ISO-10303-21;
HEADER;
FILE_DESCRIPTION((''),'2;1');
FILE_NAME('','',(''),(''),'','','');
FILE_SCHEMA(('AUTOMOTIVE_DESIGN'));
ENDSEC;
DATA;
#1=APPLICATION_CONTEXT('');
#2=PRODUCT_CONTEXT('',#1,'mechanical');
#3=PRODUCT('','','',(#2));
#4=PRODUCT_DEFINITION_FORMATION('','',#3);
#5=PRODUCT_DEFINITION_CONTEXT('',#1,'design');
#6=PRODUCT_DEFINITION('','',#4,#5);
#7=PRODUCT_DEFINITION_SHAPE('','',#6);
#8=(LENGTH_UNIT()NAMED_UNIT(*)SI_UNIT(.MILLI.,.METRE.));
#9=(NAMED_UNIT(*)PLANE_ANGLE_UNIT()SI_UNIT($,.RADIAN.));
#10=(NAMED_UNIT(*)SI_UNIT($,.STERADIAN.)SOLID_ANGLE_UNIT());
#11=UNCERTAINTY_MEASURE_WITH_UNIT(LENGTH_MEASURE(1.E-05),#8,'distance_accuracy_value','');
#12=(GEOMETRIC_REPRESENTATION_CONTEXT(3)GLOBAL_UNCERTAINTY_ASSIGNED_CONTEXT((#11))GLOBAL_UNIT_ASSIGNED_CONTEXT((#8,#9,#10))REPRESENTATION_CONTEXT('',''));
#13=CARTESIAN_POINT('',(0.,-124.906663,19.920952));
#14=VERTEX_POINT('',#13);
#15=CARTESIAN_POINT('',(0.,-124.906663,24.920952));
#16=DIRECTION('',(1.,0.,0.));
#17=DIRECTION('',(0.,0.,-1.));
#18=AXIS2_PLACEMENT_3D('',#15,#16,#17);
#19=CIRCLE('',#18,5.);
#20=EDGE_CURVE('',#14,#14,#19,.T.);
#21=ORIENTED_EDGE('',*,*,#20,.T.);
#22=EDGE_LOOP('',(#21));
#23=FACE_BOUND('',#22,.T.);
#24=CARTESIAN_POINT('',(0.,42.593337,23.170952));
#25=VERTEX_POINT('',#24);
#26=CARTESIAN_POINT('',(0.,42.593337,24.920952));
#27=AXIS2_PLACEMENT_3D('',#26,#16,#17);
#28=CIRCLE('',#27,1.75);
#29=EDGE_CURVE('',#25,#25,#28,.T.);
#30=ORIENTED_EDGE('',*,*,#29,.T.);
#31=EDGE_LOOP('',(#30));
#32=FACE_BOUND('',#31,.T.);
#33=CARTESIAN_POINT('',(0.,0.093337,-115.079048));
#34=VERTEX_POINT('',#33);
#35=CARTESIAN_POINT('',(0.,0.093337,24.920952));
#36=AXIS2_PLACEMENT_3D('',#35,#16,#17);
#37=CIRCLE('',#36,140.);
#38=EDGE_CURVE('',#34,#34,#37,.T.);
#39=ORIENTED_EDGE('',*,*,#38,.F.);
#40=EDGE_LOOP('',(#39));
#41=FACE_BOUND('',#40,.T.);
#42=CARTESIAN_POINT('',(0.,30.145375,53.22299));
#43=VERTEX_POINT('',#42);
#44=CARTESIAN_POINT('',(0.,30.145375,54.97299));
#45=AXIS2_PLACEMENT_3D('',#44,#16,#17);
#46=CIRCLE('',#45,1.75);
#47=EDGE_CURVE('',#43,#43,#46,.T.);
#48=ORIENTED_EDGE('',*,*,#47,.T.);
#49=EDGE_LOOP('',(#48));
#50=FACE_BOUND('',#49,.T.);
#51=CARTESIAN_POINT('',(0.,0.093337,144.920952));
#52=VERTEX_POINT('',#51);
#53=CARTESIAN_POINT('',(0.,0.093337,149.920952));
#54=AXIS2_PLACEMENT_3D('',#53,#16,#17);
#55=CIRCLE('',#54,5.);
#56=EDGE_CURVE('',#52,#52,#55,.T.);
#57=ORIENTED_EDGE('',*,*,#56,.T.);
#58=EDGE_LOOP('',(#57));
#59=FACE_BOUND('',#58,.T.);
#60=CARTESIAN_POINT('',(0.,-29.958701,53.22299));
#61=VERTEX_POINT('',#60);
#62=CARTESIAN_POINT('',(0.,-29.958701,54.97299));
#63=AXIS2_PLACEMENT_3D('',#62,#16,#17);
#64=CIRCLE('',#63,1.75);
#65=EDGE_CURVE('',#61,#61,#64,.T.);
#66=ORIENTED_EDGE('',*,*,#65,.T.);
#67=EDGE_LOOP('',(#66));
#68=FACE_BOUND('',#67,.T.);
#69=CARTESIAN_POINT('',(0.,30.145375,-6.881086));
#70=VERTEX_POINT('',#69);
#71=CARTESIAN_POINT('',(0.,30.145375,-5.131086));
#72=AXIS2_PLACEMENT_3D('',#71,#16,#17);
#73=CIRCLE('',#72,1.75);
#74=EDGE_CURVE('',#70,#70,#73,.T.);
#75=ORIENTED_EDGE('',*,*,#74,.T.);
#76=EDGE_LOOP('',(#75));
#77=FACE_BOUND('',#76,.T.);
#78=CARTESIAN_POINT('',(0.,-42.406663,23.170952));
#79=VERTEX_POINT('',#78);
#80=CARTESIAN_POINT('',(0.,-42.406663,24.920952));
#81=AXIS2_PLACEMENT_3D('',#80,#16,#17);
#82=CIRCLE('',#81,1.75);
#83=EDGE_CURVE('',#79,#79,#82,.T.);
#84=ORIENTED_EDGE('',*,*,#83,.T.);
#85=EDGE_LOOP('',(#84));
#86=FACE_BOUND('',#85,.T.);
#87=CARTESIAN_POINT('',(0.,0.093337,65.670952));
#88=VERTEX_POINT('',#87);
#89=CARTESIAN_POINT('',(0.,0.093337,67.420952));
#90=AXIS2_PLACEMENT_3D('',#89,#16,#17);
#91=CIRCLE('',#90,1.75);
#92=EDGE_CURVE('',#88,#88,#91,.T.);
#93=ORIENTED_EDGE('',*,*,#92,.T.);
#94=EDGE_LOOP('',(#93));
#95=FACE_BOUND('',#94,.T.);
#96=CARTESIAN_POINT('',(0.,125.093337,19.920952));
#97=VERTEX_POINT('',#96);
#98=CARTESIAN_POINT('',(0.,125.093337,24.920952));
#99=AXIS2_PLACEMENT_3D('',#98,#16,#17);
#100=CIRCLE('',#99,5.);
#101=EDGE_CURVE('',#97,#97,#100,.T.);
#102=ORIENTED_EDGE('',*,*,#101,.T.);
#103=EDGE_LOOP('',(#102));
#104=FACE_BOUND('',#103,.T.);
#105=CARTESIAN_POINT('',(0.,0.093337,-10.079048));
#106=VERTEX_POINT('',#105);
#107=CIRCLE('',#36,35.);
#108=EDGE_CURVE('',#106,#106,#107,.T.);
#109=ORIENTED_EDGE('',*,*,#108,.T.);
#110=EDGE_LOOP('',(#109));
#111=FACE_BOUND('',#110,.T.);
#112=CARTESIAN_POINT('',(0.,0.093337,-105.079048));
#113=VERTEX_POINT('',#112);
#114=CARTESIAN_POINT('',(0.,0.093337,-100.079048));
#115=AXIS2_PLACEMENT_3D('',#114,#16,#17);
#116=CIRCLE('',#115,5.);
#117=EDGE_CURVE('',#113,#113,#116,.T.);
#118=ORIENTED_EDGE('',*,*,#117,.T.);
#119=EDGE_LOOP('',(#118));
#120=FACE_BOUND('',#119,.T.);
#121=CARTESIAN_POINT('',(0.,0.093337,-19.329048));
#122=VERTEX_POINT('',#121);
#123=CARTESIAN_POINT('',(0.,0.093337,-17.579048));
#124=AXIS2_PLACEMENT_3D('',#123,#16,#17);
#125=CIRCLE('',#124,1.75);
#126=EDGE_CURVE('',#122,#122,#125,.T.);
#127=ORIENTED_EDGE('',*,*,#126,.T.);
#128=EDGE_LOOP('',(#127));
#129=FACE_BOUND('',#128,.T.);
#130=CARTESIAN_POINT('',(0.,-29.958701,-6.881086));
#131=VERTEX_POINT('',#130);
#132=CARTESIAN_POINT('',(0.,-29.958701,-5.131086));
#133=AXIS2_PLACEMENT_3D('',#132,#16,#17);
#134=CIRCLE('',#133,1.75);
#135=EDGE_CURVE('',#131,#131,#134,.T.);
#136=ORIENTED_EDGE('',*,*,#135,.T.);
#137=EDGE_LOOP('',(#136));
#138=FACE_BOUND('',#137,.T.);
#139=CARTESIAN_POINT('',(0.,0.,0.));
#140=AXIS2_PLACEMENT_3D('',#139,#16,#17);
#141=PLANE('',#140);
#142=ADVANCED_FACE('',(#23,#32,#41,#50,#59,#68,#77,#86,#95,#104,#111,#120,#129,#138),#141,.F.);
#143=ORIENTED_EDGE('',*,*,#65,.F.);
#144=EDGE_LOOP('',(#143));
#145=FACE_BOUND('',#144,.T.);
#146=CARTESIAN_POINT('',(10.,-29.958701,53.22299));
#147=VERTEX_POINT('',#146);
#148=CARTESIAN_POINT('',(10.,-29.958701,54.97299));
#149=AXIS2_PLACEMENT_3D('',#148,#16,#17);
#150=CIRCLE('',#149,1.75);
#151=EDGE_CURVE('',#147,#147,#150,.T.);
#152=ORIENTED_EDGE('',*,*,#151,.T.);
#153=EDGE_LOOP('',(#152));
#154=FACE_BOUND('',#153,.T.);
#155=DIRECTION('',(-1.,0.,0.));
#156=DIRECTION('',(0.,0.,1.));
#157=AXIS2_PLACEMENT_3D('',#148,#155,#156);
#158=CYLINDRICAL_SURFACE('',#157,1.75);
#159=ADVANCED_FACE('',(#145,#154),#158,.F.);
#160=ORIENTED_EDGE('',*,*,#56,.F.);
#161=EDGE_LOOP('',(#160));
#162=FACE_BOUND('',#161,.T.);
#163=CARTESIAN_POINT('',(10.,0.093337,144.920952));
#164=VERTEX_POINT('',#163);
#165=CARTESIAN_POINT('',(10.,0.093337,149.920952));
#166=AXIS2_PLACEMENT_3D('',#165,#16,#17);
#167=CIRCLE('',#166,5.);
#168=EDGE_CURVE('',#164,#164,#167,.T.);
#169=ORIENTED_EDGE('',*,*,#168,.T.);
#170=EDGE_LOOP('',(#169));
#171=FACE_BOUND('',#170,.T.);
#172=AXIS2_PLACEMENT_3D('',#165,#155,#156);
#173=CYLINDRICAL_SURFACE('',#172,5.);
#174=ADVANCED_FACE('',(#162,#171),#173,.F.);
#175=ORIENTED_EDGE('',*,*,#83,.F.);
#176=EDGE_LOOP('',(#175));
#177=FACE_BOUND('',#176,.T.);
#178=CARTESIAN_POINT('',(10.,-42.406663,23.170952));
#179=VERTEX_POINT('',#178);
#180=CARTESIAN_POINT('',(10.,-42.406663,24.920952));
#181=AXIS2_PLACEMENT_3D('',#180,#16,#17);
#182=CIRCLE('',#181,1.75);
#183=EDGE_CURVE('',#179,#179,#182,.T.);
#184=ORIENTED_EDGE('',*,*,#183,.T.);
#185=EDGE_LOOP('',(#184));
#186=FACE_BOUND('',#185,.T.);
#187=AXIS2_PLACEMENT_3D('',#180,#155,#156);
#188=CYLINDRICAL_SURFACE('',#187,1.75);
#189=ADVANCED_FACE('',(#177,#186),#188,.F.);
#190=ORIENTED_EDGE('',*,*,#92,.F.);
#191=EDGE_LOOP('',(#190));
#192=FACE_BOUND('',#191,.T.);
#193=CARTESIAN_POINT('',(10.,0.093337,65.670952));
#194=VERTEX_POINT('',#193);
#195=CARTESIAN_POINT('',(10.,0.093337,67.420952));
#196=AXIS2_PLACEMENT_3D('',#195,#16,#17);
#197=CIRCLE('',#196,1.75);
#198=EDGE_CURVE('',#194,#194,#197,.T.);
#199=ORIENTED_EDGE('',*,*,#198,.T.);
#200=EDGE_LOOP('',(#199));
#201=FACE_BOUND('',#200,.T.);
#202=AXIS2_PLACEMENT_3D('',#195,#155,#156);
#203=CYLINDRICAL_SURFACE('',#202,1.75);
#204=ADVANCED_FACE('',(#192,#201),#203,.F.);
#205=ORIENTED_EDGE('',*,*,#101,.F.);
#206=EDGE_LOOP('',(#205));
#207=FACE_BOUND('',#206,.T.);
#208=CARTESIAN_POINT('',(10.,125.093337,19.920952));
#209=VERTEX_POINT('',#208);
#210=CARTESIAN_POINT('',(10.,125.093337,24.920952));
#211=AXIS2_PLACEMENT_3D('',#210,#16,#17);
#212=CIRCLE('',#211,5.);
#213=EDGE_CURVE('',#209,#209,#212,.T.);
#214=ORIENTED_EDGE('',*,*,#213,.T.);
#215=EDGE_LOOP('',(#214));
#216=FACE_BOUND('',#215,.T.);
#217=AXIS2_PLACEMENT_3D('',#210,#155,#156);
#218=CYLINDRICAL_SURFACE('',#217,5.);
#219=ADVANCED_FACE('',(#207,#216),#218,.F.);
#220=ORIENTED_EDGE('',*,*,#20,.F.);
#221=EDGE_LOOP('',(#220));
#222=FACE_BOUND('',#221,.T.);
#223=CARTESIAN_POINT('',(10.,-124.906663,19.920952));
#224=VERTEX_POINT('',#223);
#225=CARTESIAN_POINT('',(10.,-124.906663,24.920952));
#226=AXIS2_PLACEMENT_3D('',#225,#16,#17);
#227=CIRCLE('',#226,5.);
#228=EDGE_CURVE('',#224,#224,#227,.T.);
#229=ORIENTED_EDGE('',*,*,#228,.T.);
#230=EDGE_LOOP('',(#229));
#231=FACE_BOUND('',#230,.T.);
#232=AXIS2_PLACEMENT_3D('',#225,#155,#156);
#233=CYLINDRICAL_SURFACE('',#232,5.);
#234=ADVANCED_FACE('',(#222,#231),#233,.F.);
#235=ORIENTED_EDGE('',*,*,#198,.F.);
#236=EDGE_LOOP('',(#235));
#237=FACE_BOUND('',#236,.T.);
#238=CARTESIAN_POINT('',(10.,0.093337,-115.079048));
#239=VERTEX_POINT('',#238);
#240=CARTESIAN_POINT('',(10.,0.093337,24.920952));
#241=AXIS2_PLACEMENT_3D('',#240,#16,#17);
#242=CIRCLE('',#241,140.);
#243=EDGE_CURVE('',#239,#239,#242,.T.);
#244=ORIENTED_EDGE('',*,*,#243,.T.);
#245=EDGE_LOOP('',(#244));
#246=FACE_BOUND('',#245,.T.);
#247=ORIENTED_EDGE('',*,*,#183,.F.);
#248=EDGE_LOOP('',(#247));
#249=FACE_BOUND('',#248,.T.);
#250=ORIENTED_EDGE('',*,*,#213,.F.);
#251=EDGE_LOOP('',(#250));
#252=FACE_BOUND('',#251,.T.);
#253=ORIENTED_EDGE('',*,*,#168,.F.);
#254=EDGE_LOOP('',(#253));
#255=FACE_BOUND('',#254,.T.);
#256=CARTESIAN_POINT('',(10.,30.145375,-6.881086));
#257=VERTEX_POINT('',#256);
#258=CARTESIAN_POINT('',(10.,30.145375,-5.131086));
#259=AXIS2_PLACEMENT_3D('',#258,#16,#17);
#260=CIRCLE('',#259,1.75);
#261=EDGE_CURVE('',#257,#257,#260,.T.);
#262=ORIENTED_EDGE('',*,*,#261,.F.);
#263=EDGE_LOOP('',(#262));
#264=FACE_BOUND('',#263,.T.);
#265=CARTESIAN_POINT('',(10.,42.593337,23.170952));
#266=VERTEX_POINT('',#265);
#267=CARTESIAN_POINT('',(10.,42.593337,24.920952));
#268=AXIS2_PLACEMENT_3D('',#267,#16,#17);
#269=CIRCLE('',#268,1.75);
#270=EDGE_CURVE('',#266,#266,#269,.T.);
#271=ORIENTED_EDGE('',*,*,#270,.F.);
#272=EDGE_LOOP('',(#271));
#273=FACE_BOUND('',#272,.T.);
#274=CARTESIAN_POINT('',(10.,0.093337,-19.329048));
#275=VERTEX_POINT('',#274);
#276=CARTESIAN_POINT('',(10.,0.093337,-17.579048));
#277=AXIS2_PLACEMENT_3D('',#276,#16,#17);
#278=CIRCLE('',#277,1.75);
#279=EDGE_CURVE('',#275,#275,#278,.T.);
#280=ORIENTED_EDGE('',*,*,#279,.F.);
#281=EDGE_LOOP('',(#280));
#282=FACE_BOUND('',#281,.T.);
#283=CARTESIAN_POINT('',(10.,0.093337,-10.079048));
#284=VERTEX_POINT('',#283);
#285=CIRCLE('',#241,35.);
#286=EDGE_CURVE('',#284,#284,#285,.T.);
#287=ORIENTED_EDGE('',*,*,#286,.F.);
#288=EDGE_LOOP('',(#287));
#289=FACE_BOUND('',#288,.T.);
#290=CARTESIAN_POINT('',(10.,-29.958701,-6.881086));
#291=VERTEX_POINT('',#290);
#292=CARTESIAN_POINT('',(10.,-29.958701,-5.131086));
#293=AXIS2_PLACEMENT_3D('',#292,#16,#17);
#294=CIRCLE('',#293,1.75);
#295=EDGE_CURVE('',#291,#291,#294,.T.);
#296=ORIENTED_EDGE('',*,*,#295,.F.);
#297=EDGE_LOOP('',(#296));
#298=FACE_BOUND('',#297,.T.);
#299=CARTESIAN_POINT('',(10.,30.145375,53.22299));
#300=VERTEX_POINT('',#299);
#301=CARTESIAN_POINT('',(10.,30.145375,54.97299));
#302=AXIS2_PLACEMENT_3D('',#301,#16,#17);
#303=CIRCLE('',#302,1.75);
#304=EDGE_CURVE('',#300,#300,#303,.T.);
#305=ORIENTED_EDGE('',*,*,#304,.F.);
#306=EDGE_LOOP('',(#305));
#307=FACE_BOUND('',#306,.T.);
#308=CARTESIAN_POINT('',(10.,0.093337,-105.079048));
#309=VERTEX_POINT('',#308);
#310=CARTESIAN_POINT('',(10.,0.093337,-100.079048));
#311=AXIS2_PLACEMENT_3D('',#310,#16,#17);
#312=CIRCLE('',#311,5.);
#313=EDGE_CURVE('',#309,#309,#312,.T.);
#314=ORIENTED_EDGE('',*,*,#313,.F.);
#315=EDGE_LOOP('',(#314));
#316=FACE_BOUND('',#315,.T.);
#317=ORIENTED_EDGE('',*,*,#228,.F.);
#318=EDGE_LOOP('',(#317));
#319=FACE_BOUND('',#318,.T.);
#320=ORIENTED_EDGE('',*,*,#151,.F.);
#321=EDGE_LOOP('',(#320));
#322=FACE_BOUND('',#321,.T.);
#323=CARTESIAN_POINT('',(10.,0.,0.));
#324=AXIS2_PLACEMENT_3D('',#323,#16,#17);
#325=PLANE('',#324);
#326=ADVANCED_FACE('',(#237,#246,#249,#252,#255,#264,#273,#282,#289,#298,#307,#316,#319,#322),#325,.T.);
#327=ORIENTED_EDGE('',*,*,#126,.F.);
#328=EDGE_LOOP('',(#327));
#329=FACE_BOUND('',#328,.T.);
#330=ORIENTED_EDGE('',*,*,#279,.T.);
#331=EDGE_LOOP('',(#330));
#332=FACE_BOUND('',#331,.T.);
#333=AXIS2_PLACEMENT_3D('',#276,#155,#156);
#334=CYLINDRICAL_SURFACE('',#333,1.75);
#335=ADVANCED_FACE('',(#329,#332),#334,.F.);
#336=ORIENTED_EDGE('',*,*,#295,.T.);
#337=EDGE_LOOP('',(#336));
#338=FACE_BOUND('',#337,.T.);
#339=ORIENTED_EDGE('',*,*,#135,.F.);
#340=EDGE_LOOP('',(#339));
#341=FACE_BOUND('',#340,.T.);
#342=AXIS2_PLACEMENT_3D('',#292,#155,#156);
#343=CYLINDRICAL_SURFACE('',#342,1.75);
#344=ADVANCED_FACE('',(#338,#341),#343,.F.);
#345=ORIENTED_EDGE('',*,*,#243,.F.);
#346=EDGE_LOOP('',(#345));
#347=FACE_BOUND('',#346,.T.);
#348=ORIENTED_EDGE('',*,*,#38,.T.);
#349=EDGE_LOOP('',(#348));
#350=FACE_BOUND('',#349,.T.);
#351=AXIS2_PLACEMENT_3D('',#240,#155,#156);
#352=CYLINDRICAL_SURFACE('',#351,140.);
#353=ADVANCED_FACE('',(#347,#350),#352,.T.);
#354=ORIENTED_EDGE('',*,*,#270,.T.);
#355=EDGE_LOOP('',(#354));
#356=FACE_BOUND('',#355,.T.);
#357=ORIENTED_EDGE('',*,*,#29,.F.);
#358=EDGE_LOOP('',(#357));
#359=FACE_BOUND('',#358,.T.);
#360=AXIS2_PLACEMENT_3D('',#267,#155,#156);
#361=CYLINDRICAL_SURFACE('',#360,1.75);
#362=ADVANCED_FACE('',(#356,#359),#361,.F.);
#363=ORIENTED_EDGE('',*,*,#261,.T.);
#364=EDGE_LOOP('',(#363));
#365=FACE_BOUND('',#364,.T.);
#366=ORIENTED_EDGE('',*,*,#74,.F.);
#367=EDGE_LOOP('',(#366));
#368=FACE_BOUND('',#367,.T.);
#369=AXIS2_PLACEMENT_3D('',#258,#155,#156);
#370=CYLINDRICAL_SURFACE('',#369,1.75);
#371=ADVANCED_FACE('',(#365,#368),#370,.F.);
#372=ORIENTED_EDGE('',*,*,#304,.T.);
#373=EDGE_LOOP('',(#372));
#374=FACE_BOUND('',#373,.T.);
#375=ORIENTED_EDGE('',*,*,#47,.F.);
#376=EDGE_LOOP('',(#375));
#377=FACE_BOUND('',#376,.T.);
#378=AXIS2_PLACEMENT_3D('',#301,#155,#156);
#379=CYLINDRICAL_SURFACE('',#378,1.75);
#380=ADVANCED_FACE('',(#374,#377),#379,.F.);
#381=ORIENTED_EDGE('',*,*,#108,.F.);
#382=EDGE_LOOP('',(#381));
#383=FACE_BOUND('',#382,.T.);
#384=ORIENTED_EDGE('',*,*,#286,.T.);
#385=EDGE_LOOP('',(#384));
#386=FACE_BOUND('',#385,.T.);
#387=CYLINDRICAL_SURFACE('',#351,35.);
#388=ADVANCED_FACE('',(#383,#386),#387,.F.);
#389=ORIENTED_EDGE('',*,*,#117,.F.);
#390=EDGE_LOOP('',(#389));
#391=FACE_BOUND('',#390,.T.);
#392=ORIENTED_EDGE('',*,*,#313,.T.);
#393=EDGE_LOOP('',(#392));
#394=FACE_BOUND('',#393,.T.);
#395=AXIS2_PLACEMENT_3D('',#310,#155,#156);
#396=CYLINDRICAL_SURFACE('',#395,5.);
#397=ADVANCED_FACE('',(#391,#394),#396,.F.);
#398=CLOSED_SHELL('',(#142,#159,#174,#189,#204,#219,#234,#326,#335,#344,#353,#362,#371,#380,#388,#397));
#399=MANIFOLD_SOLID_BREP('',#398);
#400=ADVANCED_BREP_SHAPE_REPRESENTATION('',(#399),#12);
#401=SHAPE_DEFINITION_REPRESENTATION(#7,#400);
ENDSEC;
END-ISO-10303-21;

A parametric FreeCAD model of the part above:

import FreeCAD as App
import Part
import Sketcher
from FreeCAD import Vector
Q = App.Units.Quantity

doc = App.newDocument("Part")
params = doc.addObject("Spreadsheet::Sheet", "Params")
for row, (alias, value) in enumerate([
    ("sketch1_diameter", "280 mm"),
    ("sketch1_diameter2", "10 mm"),
    ("sketch1_diameter3", "70 mm"),
    ("sketch1_diameter4", "3.5 mm"),
    ("pad1_length", "10 mm"),
], start=1):
    params.set(f"A{row}", alias)
    params.set(f"B{row}", "=" + value)
    params.setAlias(f"B{row}", alias)

body = doc.addObject("PartDesign::Body", "Body")

# Sketch on YZ plane
sketch1 = body.newObject("Sketcher::SketchObject", "Sketch")
sketch1.AttachmentSupport = (doc.getObject("YZ_Plane"), [""])
sketch1.MapMode = "FlatFace"
sketch1.addGeometry(Part.Circle(Vector(0.1, 24.9, 0), Vector(0, 0, 1), 140), False)
sketch1.addGeometry(Part.Circle(Vector(-30, 55, 0), Vector(0, 0, 1), 1.8), False)
sketch1.addGeometry(Part.Circle(Vector(-124.9, 24.9, 0), Vector(0, 0, 1), 5), False)
sketch1.addGeometry(Part.Circle(Vector(-42.4, 24.9, 0), Vector(0, 0, 1), 1.8), False)
sketch1.addGeometry(Part.Circle(Vector(-30, -5.1, 0), Vector(0, 0, 1), 1.8), False)
sketch1.addGeometry(Part.Circle(Vector(0.1, 149.9, 0), Vector(0, 0, 1), 5), False)
sketch1.addGeometry(Part.Circle(Vector(0.1, 67.4, 0), Vector(0, 0, 1), 1.8), False)
sketch1.addGeometry(Part.Circle(Vector(30.1, 55, 0), Vector(0, 0, 1), 1.8), False)
sketch1.addGeometry(Part.Circle(Vector(0.1, 24.9, 0), Vector(0, 0, 1), 35), False)
sketch1.addGeometry(Part.Circle(Vector(30.1, -5.1, 0), Vector(0, 0, 1), 1.8), False)
sketch1.addGeometry(Part.Circle(Vector(0.1, -17.6, 0), Vector(0, 0, 1), 1.8), False)
sketch1.addGeometry(Part.Circle(Vector(42.6, 24.9, 0), Vector(0, 0, 1), 1.8), False)
sketch1.addGeometry(Part.Circle(Vector(0.1, -100.1, 0), Vector(0, 0, 1), 5), False)
sketch1.addGeometry(Part.Circle(Vector(125.1, 24.9, 0), Vector(0, 0, 1), 5), False)
sketch1.addConstraint(Sketcher.Constraint("Coincident", 8, 3, 0, 3))
sketch1.addConstraint(Sketcher.Constraint("Equal", 1, 3))
sketch1.addConstraint(Sketcher.Constraint("Equal", 3, 4))
sketch1.addConstraint(Sketcher.Constraint("Equal", 2, 5))
sketch1.addConstraint(Sketcher.Constraint("Equal", 4, 6))
sketch1.addConstraint(Sketcher.Constraint("Equal", 6, 7))
sketch1.addConstraint(Sketcher.Constraint("Equal", 7, 9))
sketch1.addConstraint(Sketcher.Constraint("Equal", 9, 10))
sketch1.addConstraint(Sketcher.Constraint("Equal", 10, 11))
sketch1.addConstraint(Sketcher.Constraint("Equal", 5, 12))
sketch1.addConstraint(Sketcher.Constraint("Equal", 12, 13))
sketch1.addConstraint(Sketcher.Constraint("Horizontal", 0, 3, 2, 3))
sketch1.addConstraint(Sketcher.Constraint("Horizontal", 2, 3, 3, 3))
sketch1.addConstraint(Sketcher.Constraint("Horizontal", 1, 3, 7, 3))
sketch1.addConstraint(Sketcher.Constraint("Horizontal", 4, 3, 9, 3))
sketch1.addConstraint(Sketcher.Constraint("Horizontal", 8, 3, 11, 3))
sketch1.addConstraint(Sketcher.Constraint("Horizontal", 11, 3, 13, 3))
sketch1.addConstraint(Sketcher.Constraint("Vertical", 1, 3, 4, 3))
sketch1.addConstraint(Sketcher.Constraint("Vertical", 0, 3, 5, 3))
sketch1.addConstraint(Sketcher.Constraint("Vertical", 5, 3, 6, 3))
sketch1.addConstraint(Sketcher.Constraint("Vertical", 7, 3, 9, 3))
sketch1.addConstraint(Sketcher.Constraint("Vertical", 8, 3, 10, 3))
sketch1.addConstraint(Sketcher.Constraint("Vertical", 10, 3, 12, 3))
sketch1.addConstraint(Sketcher.Constraint("Diameter", 0, Q("280 mm")))
sketch1.addConstraint(Sketcher.Constraint("Diameter", 2, Q("10 mm")))
sketch1.addConstraint(Sketcher.Constraint("Diameter", 8, Q("70 mm")))
sketch1.addConstraint(Sketcher.Constraint("Diameter", 1, Q("3.5 mm")))
sketch1.addConstraint(Sketcher.Constraint("DistanceX", 2, 3, 0, 3, Q("125 mm")))
sketch1.addConstraint(Sketcher.Constraint("DistanceY", 0, 3, 5, 3, Q("125 mm")))
sketch1.addConstraint(Sketcher.Constraint("DistanceY", 12, 3, 0, 3, Q("125 mm")))
sketch1.addConstraint(Sketcher.Constraint("DistanceX", 0, 3, 13, 3, Q("125 mm")))
sketch1.addConstraint(Sketcher.Constraint("DistanceX", 3, 3, 0, 3, Q("42.5 mm")))
sketch1.addConstraint(Sketcher.Constraint("DistanceY", 0, 3, 6, 3, Q("42.5 mm")))
sketch1.addConstraint(Sketcher.Constraint("DistanceY", 10, 3, 0, 3, Q("42.5 mm")))
sketch1.addConstraint(Sketcher.Constraint("DistanceX", 0, 3, 11, 3, Q("42.5 mm")))
sketch1.addConstraint(Sketcher.Constraint("DistanceX", 1, 3, -1, 1, Q("29.958701 mm")))
sketch1.addConstraint(Sketcher.Constraint("DistanceY", -1, 1, 1, 3, Q("54.97299 mm")))
sketch1.addConstraint(Sketcher.Constraint("DistanceX", 1, 3, 0, 3, Q("30.052038 mm")))
sketch1.addConstraint(Sketcher.Constraint("DistanceY", 0, 3, 1, 3, Q("30.052038 mm")))
sketch1.addConstraint(Sketcher.Constraint("DistanceY", 4, 3, 3, 3, Q("30.052038 mm")))
sketch1.addConstraint(Sketcher.Constraint("DistanceX", 6, 3, 7, 3, Q("30.052038 mm")))
sketch1.setExpression("Constraints[23]", "Params.sketch1_diameter")
sketch1.setExpression("Constraints[24]", "Params.sketch1_diameter2")
sketch1.setExpression("Constraints[25]", "Params.sketch1_diameter3")
sketch1.setExpression("Constraints[26]", "Params.sketch1_diameter4")
pad1 = body.newObject("PartDesign::Pad", "Pad")
pad1.Profile = sketch1
pad1.setExpression("Length", "Params.pad1_length")

doc.recompute()
